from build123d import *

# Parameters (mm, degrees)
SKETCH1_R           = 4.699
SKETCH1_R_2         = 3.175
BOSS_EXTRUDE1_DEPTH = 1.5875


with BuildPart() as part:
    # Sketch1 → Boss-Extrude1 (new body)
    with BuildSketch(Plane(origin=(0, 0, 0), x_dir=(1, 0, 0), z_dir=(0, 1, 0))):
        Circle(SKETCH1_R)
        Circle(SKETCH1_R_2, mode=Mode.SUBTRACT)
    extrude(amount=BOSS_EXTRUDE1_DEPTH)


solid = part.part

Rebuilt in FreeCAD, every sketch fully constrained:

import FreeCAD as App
import Part
import Sketcher
from FreeCAD import Vector
Q = App.Units.Quantity

doc = App.newDocument("Part")
body = doc.addObject("PartDesign::Body", "Body")

sketch1 = body.newObject("Sketcher::SketchObject", "Sketch")
sketch1.AttachmentSupport = (doc.getObject("XZ_Plane"), [""])
sketch1.MapMode = "FlatFace"
sketch1.addGeometry([
    Part.Circle(Vector(0, 0, 0), Vector(0, 0, 1), 4.7),
    Part.Circle(Vector(0, 0, 0), Vector(0, 0, 1), 3.2),
], False)
sketch1.addConstraint([
    Sketcher.Constraint("Coincident", 0, 3, -1, 1),
    Sketcher.Constraint("Coincident", 1, 3, -1, 1),
    Sketcher.Constraint("Diameter", 0, Q("0.37 in")),
    Sketcher.Constraint("Diameter", 1, Q("0.25 in")),
])
pad1 = body.newObject("PartDesign::Pad", "Pad")
pad1.Profile = sketch1
pad1.Length = Q("0.0625 in")
pad1.Reversed = True

doc.recompute()
